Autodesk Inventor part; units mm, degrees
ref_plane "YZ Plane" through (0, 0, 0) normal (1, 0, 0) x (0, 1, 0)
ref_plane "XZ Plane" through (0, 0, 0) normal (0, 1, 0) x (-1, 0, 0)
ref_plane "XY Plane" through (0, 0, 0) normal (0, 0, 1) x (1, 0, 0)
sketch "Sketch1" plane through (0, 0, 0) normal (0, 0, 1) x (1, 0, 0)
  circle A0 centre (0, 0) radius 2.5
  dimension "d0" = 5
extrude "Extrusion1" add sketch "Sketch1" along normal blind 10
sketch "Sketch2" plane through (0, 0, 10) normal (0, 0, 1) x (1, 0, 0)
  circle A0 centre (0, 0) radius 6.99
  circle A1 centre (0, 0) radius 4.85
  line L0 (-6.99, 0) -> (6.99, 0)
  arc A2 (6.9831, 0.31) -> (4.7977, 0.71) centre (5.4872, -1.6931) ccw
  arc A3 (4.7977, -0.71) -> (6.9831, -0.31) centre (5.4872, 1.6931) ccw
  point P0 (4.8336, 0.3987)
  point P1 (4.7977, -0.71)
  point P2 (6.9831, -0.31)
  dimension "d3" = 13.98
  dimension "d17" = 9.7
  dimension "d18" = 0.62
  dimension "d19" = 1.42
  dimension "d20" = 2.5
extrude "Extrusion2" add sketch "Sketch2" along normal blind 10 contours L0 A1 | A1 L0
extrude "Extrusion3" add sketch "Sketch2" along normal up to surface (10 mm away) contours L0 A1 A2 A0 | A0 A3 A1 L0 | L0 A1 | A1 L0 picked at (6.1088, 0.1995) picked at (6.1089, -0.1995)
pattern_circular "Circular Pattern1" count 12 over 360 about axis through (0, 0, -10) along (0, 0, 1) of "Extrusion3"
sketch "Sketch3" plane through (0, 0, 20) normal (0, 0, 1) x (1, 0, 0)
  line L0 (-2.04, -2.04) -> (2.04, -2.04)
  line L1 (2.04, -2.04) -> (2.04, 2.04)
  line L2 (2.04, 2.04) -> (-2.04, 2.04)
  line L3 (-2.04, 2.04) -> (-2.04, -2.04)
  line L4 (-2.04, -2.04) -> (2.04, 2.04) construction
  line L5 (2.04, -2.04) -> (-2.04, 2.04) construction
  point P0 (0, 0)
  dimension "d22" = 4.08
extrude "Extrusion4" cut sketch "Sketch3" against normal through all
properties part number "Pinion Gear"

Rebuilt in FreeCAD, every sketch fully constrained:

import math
import FreeCAD as App
import Part
import Sketcher
from FreeCAD import Vector
Q = App.Units.Quantity


def add_polygon(sketch, points):
    """Adds a closed chain of lines whose ends are joined by coincident constraints."""
    first, n = sketch.GeometryCount, len(points)
    for a, b in zip(points, points[1:] + points[:1]):
        sketch.addGeometry(Part.LineSegment(App.Vector(*a, 0), App.Vector(*b, 0)), False)
    for i in range(n):
        sketch.addConstraint(Sketcher.Constraint("Coincident", first + i, 2, first + (i + 1) % n, 1))

doc = App.newDocument("Part")
params = doc.addObject("Spreadsheet::Sheet", "Params")
for row, (alias, value) in enumerate([
    ("sketch1_diameter", "5 mm"),
    ("pad1_length", "10 mm"),
    ("sketch2_diameter", "9.7 mm"),
    ("pad2_length", "10 mm"),
    ("sketch3_radius", "2.5 mm"),
    ("sketch3_radius2", "4.85 mm"),
    ("sketch3_radius3", "6.99 mm"),
    ("pad3_length", "10 mm"),
    ("sketch4_width", "4.08 mm"),
], start=1):
    params.set(f"A{row}", alias)
    params.set(f"B{row}", "=" + value)
    params.setAlias(f"B{row}", alias)

body = doc.addObject("PartDesign::Body", "Body")

# Sketch on XY plane
sketch1 = body.newObject("Sketcher::SketchObject", "Sketch")
sketch1.AttachmentSupport = (doc.getObject("XY_Plane"), [""])
sketch1.MapMode = "FlatFace"
sketch1.addGeometry(Part.Circle(Vector(0, 0, 0), Vector(0, 0, 1), 2.5), False)
sketch1.addConstraint(Sketcher.Constraint("Coincident", 0, 3, -1, 1))
sketch1.addConstraint(Sketcher.Constraint("Diameter", 0, Q("5 mm")))
sketch1.setExpression("Constraints[1]", "Params.sketch1_diameter")
pad1 = body.newObject("PartDesign::Pad", "Pad")
pad1.Profile = sketch1
pad1.setExpression("Length", "Params.pad1_length")

# Sketch on XY plane
sketch2 = body.newObject("Sketcher::SketchObject", "Sketch001")
sketch2.AttachmentSupport = (doc.getObject("XY_Plane"), [""])
sketch2.MapMode = "FlatFace"
sketch2.AttachmentOffset = App.Placement(Vector(0, 0, 10), App.Rotation())
sketch2.addGeometry(Part.Circle(Vector(0, 0, 0), Vector(0, 0, 1), 4.8), False)
sketch2.addConstraint(Sketcher.Constraint("Coincident", 0, 3, -1, 1))
sketch2.addConstraint(Sketcher.Constraint("Diameter", 0, Q("9.7 mm")))
sketch2.setExpression("Constraints[1]", "Params.sketch2_diameter")
pad2 = body.newObject("PartDesign::Pad", "Pad001")
pad2.Profile = sketch2
pad2.setExpression("Length", "Params.pad2_length")

# Sketch on XY plane
sketch3 = body.newObject("Sketcher::SketchObject", "Sketch002")
sketch3.AttachmentSupport = (doc.getObject("XY_Plane"), [""])
sketch3.MapMode = "FlatFace"
sketch3.AttachmentOffset = App.Placement(Vector(0, 0, 10), App.Rotation())
sketch3.addGeometry(Part.ArcOfCircle(Part.Circle(Vector(5.5, -1.7, 0), Vector(0, 0, 1), 2.5), math.radians(53), math.radians(106)), False)
sketch3.addGeometry(Part.ArcOfCircle(Part.Circle(Vector(0, 0, 0), Vector(0, 0, 1), 4.8), math.radians(8), math.radians(352)), False)
sketch3.addGeometry(Part.ArcOfCircle(Part.Circle(Vector(5.5, 1.7, 0), Vector(0, 0, 1), 2.5), math.radians(-106), math.radians(-53)), False)
sketch3.addGeometry(Part.ArcOfCircle(Part.Circle(Vector(0, 0, 0), Vector(0, 0, 1), 7), math.radians(-2.54), math.radians(2.54)), False)
sketch3.addConstraint(Sketcher.Constraint("Coincident", 0, 2, 1, 1))
sketch3.addConstraint(Sketcher.Constraint("Coincident", 1, 2, 2, 1))
sketch3.addConstraint(Sketcher.Constraint("Coincident", 2, 2, 3, 1))
sketch3.addConstraint(Sketcher.Constraint("Coincident", 3, 2, 0, 1))
sketch3.addConstraint(Sketcher.Constraint("Coincident", 1, 3, -1, 1))
sketch3.addConstraint(Sketcher.Constraint("Coincident", 3, 3, -1, 1))
sketch3.addConstraint(Sketcher.Constraint("Equal", 0, 2))
sketch3.addConstraint(Sketcher.Constraint("Symmetric", 0, 3, 2, 3, -1))
sketch3.addConstraint(Sketcher.Constraint("Radius", 0, Q("2.5 mm")))
sketch3.addConstraint(Sketcher.Constraint("Radius", 1, Q("4.85 mm")))
sketch3.addConstraint(Sketcher.Constraint("Radius", 3, Q("6.99 mm")))
sketch3.addConstraint(Sketcher.Constraint("DistanceY", 1, 2, 0, 2, Q("1.42 mm")))
sketch3.addConstraint(Sketcher.Constraint("DistanceY", 2, 2, 3, 2, Q("0.62 mm")))
sketch3.setExpression("Constraints[8]", "Params.sketch3_radius")
sketch3.setExpression("Constraints[9]", "Params.sketch3_radius2")
sketch3.setExpression("Constraints[10]", "Params.sketch3_radius3")
pad3 = body.newObject("PartDesign::Pad", "Pad002")
pad3.Profile = sketch3
pad3.setExpression("Length", "Params.pad3_length")
doc.recompute()

polarpattern = body.newObject("PartDesign::PolarPattern", "PolarPattern")
polarpattern.Originals = [pad3]
polarpattern.Axis = (doc.getObject("Z_Axis"), [""])
polarpattern.Angle = 360
polarpattern.Occurrences = 12
body.Tip = polarpattern

# Sketch on XY plane
sketch4 = body.newObject("Sketcher::SketchObject", "Sketch003")
sketch4.AttachmentSupport = (doc.getObject("XY_Plane"), [""])
sketch4.MapMode = "FlatFace"
sketch4.AttachmentOffset = App.Placement(Vector(0, 0, 20), App.Rotation())
add_polygon(sketch4, [(-2, 2), (-2, -2), (2, -2), (2, 2)])  # lines 0-3
sketch4.addConstraint(Sketcher.Constraint("Vertical", 0))
sketch4.addConstraint(Sketcher.Constraint("Horizontal", 1))
sketch4.addConstraint(Sketcher.Constraint("Vertical", 2))
sketch4.addConstraint(Sketcher.Constraint("Horizontal", 3))
sketch4.addConstraint(Sketcher.Constraint("Symmetric", 0, 2, 2, 2, -1, 1))
sketch4.addConstraint(Sketcher.Constraint("Equal", 3, 0))
sketch4.addConstraint(Sketcher.Constraint("DistanceX", 1, 1, 1, 2, Q("4.08 mm")))
sketch4.setExpression("Constraints[10]", "Params.sketch4_width")
pocket1 = body.newObject("PartDesign::Pocket", "Pocket")
pocket1.Profile = sketch4
pocket1.Type = "ThroughAll"

doc.recompute()
